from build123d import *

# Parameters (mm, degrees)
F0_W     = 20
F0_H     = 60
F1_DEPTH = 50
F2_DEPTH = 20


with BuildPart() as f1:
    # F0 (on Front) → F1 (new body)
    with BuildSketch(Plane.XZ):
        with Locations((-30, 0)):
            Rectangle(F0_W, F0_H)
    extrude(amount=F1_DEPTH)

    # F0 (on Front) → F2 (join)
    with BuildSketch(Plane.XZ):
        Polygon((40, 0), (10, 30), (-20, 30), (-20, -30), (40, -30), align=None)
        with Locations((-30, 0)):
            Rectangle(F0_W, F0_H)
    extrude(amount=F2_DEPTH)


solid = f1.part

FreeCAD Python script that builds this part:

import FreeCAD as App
import Part
import Sketcher
from FreeCAD import Vector
Q = App.Units.Quantity

doc = App.newDocument("Part")
body = doc.addObject("PartDesign::Body", "Body")

# Sketch on XZ plane
sketch1 = doc.addObject("Sketcher::SketchObject", "Sketch")
body.addObject(sketch1)
sketch1.AttachmentSupport = (doc.XZ_Plane, [""])
sketch1.MapMode = "FlatFace"
sketch1.addGeometry(Part.LineSegment(Vector(-40, 30, 0), Vector(-40, -30, 0)), False)
sketch1.addGeometry(Part.LineSegment(Vector(-40, -30, 0), Vector(-20, -30, 0)), False)
sketch1.addGeometry(Part.LineSegment(Vector(-20, -30, 0), Vector(-20, 30, 0)), False)
sketch1.addGeometry(Part.LineSegment(Vector(-20, 30, 0), Vector(-40, 30, 0)), False)
sketch1.addConstraint(Sketcher.Constraint("Coincident", 0, 2, 1, 1))
sketch1.addConstraint(Sketcher.Constraint("Coincident", 1, 2, 2, 1))
sketch1.addConstraint(Sketcher.Constraint("Coincident", 2, 2, 3, 1))
sketch1.addConstraint(Sketcher.Constraint("Coincident", 3, 2, 0, 1))
sketch1.addConstraint(Sketcher.Constraint("Vertical", 0))
sketch1.addConstraint(Sketcher.Constraint("Horizontal", 1))
sketch1.addConstraint(Sketcher.Constraint("Vertical", 2))
sketch1.addConstraint(Sketcher.Constraint("Horizontal", 3))
sketch1.addConstraint(Sketcher.Constraint("DistanceX", 1, 1, 1, 2, Q("20 mm")))
sketch1.addConstraint(Sketcher.Constraint("DistanceY", 0, 2, 0, 1, Q("60 mm")))
sketch1.addConstraint(Sketcher.Constraint("DistanceX", 0, 2, -1, 1, Q("40 mm")))
sketch1.addConstraint(Sketcher.Constraint("DistanceY", 0, 2, -1, 1, Q("30 mm")))
pad1 = doc.addObject("PartDesign::Pad", "Pad")
body.addObject(pad1)
pad1.Profile = sketch1
pad1.Length = 50

# Sketch on XZ plane
sketch2 = doc.addObject("Sketcher::SketchObject", "Sketch001")
body.addObject(sketch2)
sketch2.AttachmentSupport = (doc.XZ_Plane, [""])
sketch2.MapMode = "FlatFace"
sketch2.addGeometry(Part.LineSegment(Vector(40, 0, 0), Vector(10, 30, 0)), False)
sketch2.addGeometry(Part.LineSegment(Vector(10, 30, 0), Vector(-40, 30, 0)), False)
sketch2.addGeometry(Part.LineSegment(Vector(-40, 30, 0), Vector(-40, -30, 0)), False)
sketch2.addGeometry(Part.LineSegment(Vector(-40, -30, 0), Vector(40, -30, 0)), False)
sketch2.addGeometry(Part.LineSegment(Vector(40, -30, 0), Vector(40, 0, 0)), False)
sketch2.addConstraint(Sketcher.Constraint("Coincident", 0, 2, 1, 1))
sketch2.addConstraint(Sketcher.Constraint("Coincident", 1, 2, 2, 1))
sketch2.addConstraint(Sketcher.Constraint("Coincident", 2, 2, 3, 1))
sketch2.addConstraint(Sketcher.Constraint("Coincident", 3, 2, 4, 1))
sketch2.addConstraint(Sketcher.Constraint("Coincident", 4, 2, 0, 1))
sketch2.addConstraint(Sketcher.Constraint("Horizontal", 1))
sketch2.addConstraint(Sketcher.Constraint("Vertical", 2))
sketch2.addConstraint(Sketcher.Constraint("Horizontal", 3))
sketch2.addConstraint(Sketcher.Constraint("Vertical", 4))
sketch2.addConstraint(Sketcher.Constraint("Symmetric", 1, 2, 3, 2, -1, 1))
sketch2.addConstraint(Sketcher.Constraint("PointOnObject", 4, 2, -1))
sketch2.addConstraint(Sketcher.Constraint("DistanceX", 1, 2, 1, 1, Q("50 mm")))
sketch2.addConstraint(Sketcher.Constraint("DistanceX", 3, 1, 3, 2, Q("80 mm")))
sketch2.addConstraint(Sketcher.Constraint("DistanceY", 2, 2, 2, 1, Q("60 mm")))
pad2 = doc.addObject("PartDesign::Pad", "Pad001")
body.addObject(pad2)
pad2.Profile = sketch2
pad2.Length = 20

doc.recompute()
